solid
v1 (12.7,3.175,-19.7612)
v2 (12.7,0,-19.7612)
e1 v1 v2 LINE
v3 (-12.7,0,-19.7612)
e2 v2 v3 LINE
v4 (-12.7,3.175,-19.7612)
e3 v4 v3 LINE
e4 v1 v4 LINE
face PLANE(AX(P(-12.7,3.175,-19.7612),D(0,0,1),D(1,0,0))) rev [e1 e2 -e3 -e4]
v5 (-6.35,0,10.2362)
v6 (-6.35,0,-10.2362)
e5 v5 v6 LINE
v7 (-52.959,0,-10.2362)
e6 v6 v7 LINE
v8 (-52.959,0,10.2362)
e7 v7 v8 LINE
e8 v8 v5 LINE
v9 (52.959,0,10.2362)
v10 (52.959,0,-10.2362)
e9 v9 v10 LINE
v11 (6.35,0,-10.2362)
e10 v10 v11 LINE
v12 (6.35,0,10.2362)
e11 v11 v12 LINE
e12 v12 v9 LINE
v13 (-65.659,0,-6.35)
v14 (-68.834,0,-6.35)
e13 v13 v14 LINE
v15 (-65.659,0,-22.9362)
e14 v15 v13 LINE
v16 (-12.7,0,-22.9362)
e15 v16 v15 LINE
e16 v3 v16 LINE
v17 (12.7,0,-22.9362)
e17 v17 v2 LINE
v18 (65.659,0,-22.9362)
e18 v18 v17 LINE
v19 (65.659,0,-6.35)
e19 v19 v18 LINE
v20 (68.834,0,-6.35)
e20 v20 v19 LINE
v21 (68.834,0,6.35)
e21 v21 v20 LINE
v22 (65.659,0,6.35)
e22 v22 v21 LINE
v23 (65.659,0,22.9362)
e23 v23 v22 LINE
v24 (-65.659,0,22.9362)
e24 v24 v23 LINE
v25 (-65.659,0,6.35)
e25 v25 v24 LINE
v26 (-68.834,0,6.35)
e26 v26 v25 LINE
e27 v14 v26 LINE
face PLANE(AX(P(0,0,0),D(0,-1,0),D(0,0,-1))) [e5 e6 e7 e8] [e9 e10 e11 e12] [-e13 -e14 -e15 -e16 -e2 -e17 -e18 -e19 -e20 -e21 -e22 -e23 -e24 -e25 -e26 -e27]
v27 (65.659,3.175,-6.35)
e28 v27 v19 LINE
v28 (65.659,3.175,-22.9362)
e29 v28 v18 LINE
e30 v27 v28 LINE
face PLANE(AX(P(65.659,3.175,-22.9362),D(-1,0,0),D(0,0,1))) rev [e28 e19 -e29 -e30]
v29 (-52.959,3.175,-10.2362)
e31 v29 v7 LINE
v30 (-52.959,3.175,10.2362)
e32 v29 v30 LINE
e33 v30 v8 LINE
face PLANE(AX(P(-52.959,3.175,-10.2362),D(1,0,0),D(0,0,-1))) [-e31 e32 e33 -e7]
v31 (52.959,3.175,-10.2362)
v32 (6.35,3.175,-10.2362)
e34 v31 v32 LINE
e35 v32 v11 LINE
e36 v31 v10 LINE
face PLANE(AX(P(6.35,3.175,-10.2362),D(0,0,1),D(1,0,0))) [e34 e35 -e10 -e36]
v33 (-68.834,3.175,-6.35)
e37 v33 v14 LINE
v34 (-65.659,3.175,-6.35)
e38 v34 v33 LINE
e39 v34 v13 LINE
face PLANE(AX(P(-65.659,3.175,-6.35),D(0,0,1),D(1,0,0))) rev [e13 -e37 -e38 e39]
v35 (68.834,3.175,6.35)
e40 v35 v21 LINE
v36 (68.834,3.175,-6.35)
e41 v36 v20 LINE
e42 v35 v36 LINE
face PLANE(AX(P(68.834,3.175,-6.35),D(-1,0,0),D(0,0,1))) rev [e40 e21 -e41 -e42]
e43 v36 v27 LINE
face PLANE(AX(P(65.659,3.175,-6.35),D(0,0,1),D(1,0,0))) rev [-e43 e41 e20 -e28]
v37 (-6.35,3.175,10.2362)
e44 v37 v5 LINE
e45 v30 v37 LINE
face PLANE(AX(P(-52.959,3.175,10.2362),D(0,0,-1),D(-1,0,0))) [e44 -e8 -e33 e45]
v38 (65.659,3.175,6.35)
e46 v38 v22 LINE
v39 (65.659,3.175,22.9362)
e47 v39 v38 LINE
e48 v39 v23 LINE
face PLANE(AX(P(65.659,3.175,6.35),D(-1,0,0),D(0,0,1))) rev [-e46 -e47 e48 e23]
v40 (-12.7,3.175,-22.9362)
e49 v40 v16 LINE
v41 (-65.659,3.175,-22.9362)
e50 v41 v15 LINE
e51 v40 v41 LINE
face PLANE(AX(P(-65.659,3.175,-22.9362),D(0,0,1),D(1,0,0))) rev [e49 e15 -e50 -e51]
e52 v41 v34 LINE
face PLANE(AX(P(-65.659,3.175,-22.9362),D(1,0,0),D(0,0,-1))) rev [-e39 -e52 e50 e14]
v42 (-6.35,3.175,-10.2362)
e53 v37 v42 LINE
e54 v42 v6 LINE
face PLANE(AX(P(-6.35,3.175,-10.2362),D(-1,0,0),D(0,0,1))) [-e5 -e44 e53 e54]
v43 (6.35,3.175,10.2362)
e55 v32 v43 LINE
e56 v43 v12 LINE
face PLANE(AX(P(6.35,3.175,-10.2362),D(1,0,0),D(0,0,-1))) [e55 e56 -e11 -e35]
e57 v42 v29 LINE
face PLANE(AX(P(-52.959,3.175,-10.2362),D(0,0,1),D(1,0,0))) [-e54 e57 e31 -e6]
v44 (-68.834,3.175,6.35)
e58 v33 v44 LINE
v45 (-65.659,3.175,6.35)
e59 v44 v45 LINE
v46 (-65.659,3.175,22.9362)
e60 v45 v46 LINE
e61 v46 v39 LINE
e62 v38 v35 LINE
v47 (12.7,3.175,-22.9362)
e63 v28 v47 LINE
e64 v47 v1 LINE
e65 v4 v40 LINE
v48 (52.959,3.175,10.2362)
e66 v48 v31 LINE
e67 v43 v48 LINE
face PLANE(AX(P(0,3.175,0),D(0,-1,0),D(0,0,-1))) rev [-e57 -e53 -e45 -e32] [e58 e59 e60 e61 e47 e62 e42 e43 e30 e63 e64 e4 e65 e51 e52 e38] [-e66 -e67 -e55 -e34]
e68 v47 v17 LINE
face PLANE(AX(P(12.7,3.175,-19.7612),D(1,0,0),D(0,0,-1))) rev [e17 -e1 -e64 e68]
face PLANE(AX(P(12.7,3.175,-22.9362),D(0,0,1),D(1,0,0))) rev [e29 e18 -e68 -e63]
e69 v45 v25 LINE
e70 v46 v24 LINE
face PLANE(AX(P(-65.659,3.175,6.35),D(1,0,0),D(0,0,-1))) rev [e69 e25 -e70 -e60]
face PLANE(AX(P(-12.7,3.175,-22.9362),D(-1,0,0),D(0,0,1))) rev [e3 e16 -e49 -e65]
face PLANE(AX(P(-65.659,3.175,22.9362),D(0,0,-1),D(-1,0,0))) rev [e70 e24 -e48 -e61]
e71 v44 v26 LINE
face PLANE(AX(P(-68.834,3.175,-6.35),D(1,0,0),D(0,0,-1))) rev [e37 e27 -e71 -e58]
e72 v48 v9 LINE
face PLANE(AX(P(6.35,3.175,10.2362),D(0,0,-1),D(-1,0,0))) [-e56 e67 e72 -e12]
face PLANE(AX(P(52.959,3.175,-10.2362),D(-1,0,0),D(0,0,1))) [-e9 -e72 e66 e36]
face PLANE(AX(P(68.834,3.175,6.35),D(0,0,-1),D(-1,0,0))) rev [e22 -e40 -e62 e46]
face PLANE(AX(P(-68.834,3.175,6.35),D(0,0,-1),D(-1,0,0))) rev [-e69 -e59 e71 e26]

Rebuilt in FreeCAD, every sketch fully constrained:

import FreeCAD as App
import Part
import Sketcher
Q = App.Units.Quantity


def add_polygon(sketch, points):
    """Adds a closed chain of lines whose ends are joined by coincident constraints."""
    first, n = sketch.GeometryCount, len(points)
    for a, b in zip(points, points[1:] + points[:1]):
        sketch.addGeometry(Part.LineSegment(App.Vector(*a, 0), App.Vector(*b, 0)), False)
    for i in range(n):
        sketch.addConstraint(Sketcher.Constraint("Coincident", first + i, 2, first + (i + 1) % n, 1))

doc = App.newDocument("Part")
params = doc.addObject("Spreadsheet::Sheet", "Params")
for row, (alias, value) in enumerate([
    ("sketch1_width", "1 in"),
    ("sketch1_height", "0.5 in"),
    ("sketch1_width2", "5.17 in"),
    ("sketch1_width3", "0.125 in"),
    ("sketch1_height2", "0.653 in"),
    ("pad1_length", "0.125 in"),
], start=1):
    params.set(f"A{row}", alias)
    params.set(f"B{row}", "=" + value)
    params.setAlias(f"B{row}", alias)

body = doc.addObject("PartDesign::Body", "Body")

# Sketch on XZ plane
sketch1 = body.newObject("Sketcher::SketchObject", "Sketch")
sketch1.AttachmentSupport = (doc.getObject("XZ_Plane"), [""])
sketch1.MapMode = "FlatFace"
add_polygon(sketch1, [(-12.7, -22.9), (-65.7, -22.9), (-65.7, -6.3), (-68.8, -6.3), (-68.8, 6.3), (-65.7, 6.3), (-65.7, 22.9), (65.7, 22.9), (65.7, 6.3), (68.8, 6.3), (68.8, -6.3), (65.7, -6.3), (65.7, -22.9), (12.7, -22.9), (12.7, -19.8), (-12.7, -19.8)])  # lines 0-15
add_polygon(sketch1, [(6.3, 10.2), (6.3, -10.2), (53, -10.2), (53, 10.2)])  # lines 16-19
add_polygon(sketch1, [(-53, 10.2), (-53, -10.2), (-6.3, -10.2), (-6.3, 10.2)])  # lines 20-23
sketch1.addConstraint([
    Sketcher.Constraint("Horizontal", 0),
    Sketcher.Constraint("Vertical", 1),
    Sketcher.Constraint("Horizontal", 2),
    Sketcher.Constraint("Vertical", 3),
    Sketcher.Constraint("Horizontal", 4),
    Sketcher.Constraint("Vertical", 5),
    Sketcher.Constraint("Horizontal", 6),
    Sketcher.Constraint("Vertical", 7),
    Sketcher.Constraint("Horizontal", 8),
    Sketcher.Constraint("Vertical", 9),
    Sketcher.Constraint("Horizontal", 10),
    Sketcher.Constraint("Vertical", 11),
    Sketcher.Constraint("Horizontal", 12),
    Sketcher.Constraint("Vertical", 13),
    Sketcher.Constraint("Horizontal", 14),
    Sketcher.Constraint("Vertical", 15),
    Sketcher.Constraint("Vertical", 16),
    Sketcher.Constraint("Horizontal", 17),
    Sketcher.Constraint("Vertical", 18),
    Sketcher.Constraint("Horizontal", 19),
    Sketcher.Constraint("Vertical", 20),
    Sketcher.Constraint("Horizontal", 21),
    Sketcher.Constraint("Vertical", 22),
    Sketcher.Constraint("Horizontal", 23),
    Sketcher.Constraint("Symmetric", 0, 2, 6, 2, -1, 1),
    Sketcher.Constraint("Symmetric", 2, 2, 8, 2, -1, 1),
    Sketcher.Constraint("Symmetric", 4, 2, 10, 2, -1, 1),
    Sketcher.Constraint("Symmetric", 18, 2, 20, 2, -1, 1),
    Sketcher.Constraint("Symmetric", 16, 2, 22, 2, -1, 1),
    Sketcher.Constraint("Symmetric", 4, 2, 7, 2, -2),
    Sketcher.Constraint("Symmetric", 12, 2, 15, 2, -2),
    Sketcher.Constraint("Horizontal", 17, 2, 20, 2),
    Sketcher.Constraint("Equal", 10, 13),
    Sketcher.Constraint("DistanceX", 14, 2, 14, 1, Q("1 in")),
    Sketcher.Constraint("DistanceY", 3, 1, 3, 2, Q("0.5 in")),
    Sketcher.Constraint("DistanceX", 6, 1, 6, 2, Q("5.17 in")),
    Sketcher.Constraint("DistanceY", 12, 2, 16, 2, Q("0.5 in")),
    Sketcher.Constraint("DistanceX", 17, 2, 10, 2, Q("0.5 in")),
    Sketcher.Constraint("DistanceX", 21, 2, 16, 2, Q("0.5 in")),
    Sketcher.Constraint("DistanceX", 2, 2, 2, 1, Q("0.125 in")),
    Sketcher.Constraint("DistanceY", 1, 1, 1, 2, Q("0.653 in")),
])
sketch1.setExpression("Constraints[57]", "Params.sketch1_width")
sketch1.setExpression("Constraints[58]", "Params.sketch1_height")
sketch1.setExpression("Constraints[59]", "Params.sketch1_width2")
sketch1.setExpression("Constraints[63]", "Params.sketch1_width3")
sketch1.setExpression("Constraints[64]", "Params.sketch1_height2")
pad1 = body.newObject("PartDesign::Pad", "Pad")
pad1.Profile = sketch1
pad1.setExpression("Length", "Params.pad1_length")
pad1.Reversed = True

doc.recompute()
